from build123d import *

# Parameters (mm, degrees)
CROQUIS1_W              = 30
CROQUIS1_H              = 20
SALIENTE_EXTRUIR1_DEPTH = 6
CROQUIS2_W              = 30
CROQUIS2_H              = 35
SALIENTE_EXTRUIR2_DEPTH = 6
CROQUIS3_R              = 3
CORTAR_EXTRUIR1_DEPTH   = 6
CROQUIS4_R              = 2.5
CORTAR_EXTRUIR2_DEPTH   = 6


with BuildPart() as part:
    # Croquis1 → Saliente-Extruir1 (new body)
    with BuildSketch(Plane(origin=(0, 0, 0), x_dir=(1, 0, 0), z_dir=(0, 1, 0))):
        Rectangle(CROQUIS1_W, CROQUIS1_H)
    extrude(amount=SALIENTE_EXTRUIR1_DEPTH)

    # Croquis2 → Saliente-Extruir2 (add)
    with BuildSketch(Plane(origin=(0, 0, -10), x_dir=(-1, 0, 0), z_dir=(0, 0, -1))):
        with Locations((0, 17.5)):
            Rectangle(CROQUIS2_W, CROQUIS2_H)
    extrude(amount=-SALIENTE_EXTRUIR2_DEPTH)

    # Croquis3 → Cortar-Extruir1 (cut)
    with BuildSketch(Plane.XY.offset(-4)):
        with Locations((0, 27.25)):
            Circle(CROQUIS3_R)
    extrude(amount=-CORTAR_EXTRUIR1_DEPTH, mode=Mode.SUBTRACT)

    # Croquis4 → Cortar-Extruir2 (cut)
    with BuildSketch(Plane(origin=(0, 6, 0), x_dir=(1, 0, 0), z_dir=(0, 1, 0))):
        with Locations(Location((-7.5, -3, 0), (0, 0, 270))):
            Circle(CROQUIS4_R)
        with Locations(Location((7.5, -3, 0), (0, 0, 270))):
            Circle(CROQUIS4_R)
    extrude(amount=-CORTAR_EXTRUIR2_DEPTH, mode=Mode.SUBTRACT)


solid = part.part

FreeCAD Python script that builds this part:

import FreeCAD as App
import Part
import Sketcher

V = App.Vector


def add_polygon(sketch, points):
    """Adds a closed chain of lines whose ends are joined by coincident constraints."""
    first, n = sketch.GeometryCount, len(points)
    for a, b in zip(points, points[1:] + points[:1]):
        sketch.addGeometry(Part.LineSegment(App.Vector(*a, 0), App.Vector(*b, 0)), False)
    for i in range(n):
        sketch.addConstraint(Sketcher.Constraint("Coincident", first + i, 2, first + (i + 1) % n, 1))

doc = App.newDocument("Part")
body = doc.addObject("PartDesign::Body", "Body")

# Sketch on XZ plane
sketch1 = body.newObject("Sketcher::SketchObject", "Sketch")
sketch1.AttachmentSupport = (doc.getObject("XZ_Plane"), [""])
sketch1.MapMode = "FlatFace"
add_polygon(sketch1, [(-15, -10), (-15, 10), (15, 10), (15, -10)])  # lines 0-3
sketch1.addConstraint([
    Sketcher.Constraint("Vertical", 0),
    Sketcher.Constraint("Horizontal", 1),
    Sketcher.Constraint("Vertical", 2),
    Sketcher.Constraint("Horizontal", 3),
    Sketcher.Constraint("Symmetric", 0, 2, 2, 2, -1, 1),
    Sketcher.Constraint("DistanceX", 1, 1, 1, 2, 30.0),
    Sketcher.Constraint("DistanceY", 0, 1, 0, 2, 20.0),
])
pad1 = body.newObject("PartDesign::Pad", "Pad")
pad1.Profile = sketch1
pad1.Length = 6
pad1.Reversed = True

# Sketch on XY plane
sketch2 = body.newObject("Sketcher::SketchObject", "Sketch001")
sketch2.AttachmentSupport = (doc.getObject("XY_Plane"), [""])
sketch2.MapMode = "FlatFace"
sketch2.AttachmentOffset = App.Placement(V(0, 0, -10), App.Rotation())
add_polygon(sketch2, [(15, 35), (15, 0), (-15, 0), (-15, 35)])  # lines 0-3
sketch2.addConstraint([
    Sketcher.Constraint("Vertical", 0),
    Sketcher.Constraint("Horizontal", 1),
    Sketcher.Constraint("Vertical", 2),
    Sketcher.Constraint("Horizontal", 3),
    Sketcher.Constraint("Symmetric", 0, 2, 1, 2, -1, 1),
    Sketcher.Constraint("DistanceX", 1, 2, 1, 1, 30.0),
    Sketcher.Constraint("DistanceY", 0, 2, 0, 1, 35.0),
])
pad2 = body.newObject("PartDesign::Pad", "Pad001")
pad2.Profile = sketch2
pad2.Length = 6

# Sketch on XY plane
sketch3 = body.newObject("Sketcher::SketchObject", "Sketch002")
sketch3.AttachmentSupport = (doc.getObject("XY_Plane"), [""])
sketch3.MapMode = "FlatFace"
sketch3.AttachmentOffset = App.Placement(V(0, 0, -4), App.Rotation())
sketch3.addGeometry(Part.Circle(V(0, 27.2, 0), V(0, 0, 1), 3), False)
sketch3.addConstraint([
    Sketcher.Constraint("PointOnObject", 0, 3, -2),
    Sketcher.Constraint("Diameter", 0, 6.0),
    Sketcher.Constraint("DistanceY", -1, 1, 0, 3, 27.25),
])
pocket1 = body.newObject("PartDesign::Pocket", "Pocket")
pocket1.Profile = sketch3
pocket1.Length = 6

# Sketch on XZ plane
sketch4 = body.newObject("Sketcher::SketchObject", "Sketch003")
sketch4.AttachmentSupport = (doc.getObject("XZ_Plane"), [""])
sketch4.MapMode = "FlatFace"
sketch4.AttachmentOffset = App.Placement(V(0, 0, -6), App.Rotation())
sketch4.addGeometry([
    Part.Circle(V(-7.5, 3, 0), V(0, 0, 1), 2.5),
    Part.Circle(V(7.5, 3, 0), V(0, 0, 1), 2.5),
], False)
sketch4.addConstraint([
    Sketcher.Constraint("Equal", 0, 1),
    Sketcher.Constraint("Symmetric", 0, 3, 1, 3, -2),
    Sketcher.Constraint("Diameter", 0, 5.0),
    Sketcher.Constraint("DistanceY", -1, 1, 0, 3, 3.0),
    Sketcher.Constraint("DistanceX", 0, 3, 1, 3, 15.0),
])
pocket2 = body.newObject("PartDesign::Pocket", "Pocket001")
pocket2.Profile = sketch4
pocket2.Length = 6
pocket2.Reversed = True

doc.recompute()
